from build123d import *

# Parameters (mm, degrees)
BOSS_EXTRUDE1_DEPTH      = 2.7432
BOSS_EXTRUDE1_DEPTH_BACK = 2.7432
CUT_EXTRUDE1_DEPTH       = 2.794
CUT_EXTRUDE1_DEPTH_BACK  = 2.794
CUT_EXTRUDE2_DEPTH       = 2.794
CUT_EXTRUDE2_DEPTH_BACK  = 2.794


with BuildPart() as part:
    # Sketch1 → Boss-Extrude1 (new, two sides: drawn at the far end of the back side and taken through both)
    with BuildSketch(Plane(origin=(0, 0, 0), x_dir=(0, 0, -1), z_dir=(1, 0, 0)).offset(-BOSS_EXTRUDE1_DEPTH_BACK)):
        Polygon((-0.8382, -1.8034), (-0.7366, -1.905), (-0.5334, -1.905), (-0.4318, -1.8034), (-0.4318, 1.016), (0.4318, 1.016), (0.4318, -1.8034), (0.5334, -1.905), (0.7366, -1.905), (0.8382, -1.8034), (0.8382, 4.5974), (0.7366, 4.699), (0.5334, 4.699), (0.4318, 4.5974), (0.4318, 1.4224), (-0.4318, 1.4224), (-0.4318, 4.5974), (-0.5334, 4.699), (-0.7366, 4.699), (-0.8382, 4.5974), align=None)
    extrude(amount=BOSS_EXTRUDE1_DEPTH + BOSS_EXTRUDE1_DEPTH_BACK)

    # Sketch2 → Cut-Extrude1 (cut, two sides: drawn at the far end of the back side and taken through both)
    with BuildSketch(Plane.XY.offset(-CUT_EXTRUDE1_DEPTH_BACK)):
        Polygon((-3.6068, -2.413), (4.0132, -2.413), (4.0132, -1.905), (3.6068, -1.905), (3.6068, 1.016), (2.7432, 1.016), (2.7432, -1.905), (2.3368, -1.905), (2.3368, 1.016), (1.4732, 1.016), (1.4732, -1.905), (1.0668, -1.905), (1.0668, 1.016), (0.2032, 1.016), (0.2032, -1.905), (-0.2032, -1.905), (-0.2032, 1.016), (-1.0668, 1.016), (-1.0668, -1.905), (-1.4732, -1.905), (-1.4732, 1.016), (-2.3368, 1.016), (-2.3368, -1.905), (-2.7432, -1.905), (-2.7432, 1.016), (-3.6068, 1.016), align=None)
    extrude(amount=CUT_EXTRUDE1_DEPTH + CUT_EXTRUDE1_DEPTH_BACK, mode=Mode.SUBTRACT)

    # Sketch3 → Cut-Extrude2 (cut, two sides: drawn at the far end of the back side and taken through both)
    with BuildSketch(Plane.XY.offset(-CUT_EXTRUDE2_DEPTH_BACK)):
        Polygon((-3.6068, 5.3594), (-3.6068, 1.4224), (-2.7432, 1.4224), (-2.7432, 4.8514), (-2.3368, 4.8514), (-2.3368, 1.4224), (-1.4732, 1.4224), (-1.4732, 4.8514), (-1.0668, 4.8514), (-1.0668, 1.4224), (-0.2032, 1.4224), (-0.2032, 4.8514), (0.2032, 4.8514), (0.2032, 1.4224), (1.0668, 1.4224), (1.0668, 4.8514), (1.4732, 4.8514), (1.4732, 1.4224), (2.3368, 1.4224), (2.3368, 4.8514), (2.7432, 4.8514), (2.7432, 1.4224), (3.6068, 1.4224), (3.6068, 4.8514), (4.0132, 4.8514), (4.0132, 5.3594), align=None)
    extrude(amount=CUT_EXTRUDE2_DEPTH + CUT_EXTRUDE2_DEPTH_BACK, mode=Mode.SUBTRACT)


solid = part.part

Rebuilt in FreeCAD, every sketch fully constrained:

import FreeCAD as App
import Part
import Sketcher
from FreeCAD import Vector
Q = App.Units.Quantity

doc = App.newDocument("Part")
body = doc.addObject("PartDesign::Body", "Body")

# Sketch on YZ plane
sketch1 = body.newObject("Sketcher::SketchObject", "Sketch")
sketch1.AttachmentSupport = (doc.getObject("YZ_Plane"), [""])
sketch1.MapMode = "FlatFace"
sketch1.addGeometry([
    Part.LineSegment(Vector(-1.8, 0.84, 0), Vector(-1.91, 0.74, 0)),  # 0
    Part.LineSegment(Vector(-1.91, 0.74, 0), Vector(-1.91, 0.53, 0)),  # 1
    Part.LineSegment(Vector(-1.91, 0.53, 0), Vector(-1.8, 0.43, 0)),  # 2
    Part.LineSegment(Vector(-1.8, 0.43, 0), Vector(1.02, 0.43, 0)),  # 3
    Part.LineSegment(Vector(1.02, 0.43, 0), Vector(1.02, -0.43, 0)),  # 4
    Part.LineSegment(Vector(1.02, -0.43, 0), Vector(-1.8, -0.43, 0)),  # 5
    Part.LineSegment(Vector(-1.8, -0.43, 0), Vector(-1.91, -0.53, 0)),  # 6
    Part.LineSegment(Vector(-1.91, -0.53, 0), Vector(-1.91, -0.74, 0)),  # 7
    Part.LineSegment(Vector(-1.91, -0.74, 0), Vector(-1.8, -0.84, 0)),  # 8
    Part.LineSegment(Vector(-1.8, -0.84, 0), Vector(4.6, -0.84, 0)),  # 9
    Part.LineSegment(Vector(4.6, -0.84, 0), Vector(4.7, -0.74, 0)),  # 10
    Part.LineSegment(Vector(4.7, -0.74, 0), Vector(4.7, -0.53, 0)),  # 11
    Part.LineSegment(Vector(4.7, -0.53, 0), Vector(4.6, -0.43, 0)),  # 12
    Part.LineSegment(Vector(4.6, -0.43, 0), Vector(1.42, -0.43, 0)),  # 13
    Part.LineSegment(Vector(1.42, -0.43, 0), Vector(1.42, 0.43, 0)),  # 14
    Part.LineSegment(Vector(1.42, 0.43, 0), Vector(4.6, 0.43, 0)),  # 15
    Part.LineSegment(Vector(4.6, 0.43, 0), Vector(4.7, 0.53, 0)),  # 16
    Part.LineSegment(Vector(4.7, 0.53, 0), Vector(4.7, 0.74, 0)),  # 17
    Part.LineSegment(Vector(4.7, 0.74, 0), Vector(4.6, 0.84, 0)),  # 18
    Part.LineSegment(Vector(4.6, 0.84, 0), Vector(-1.8, 0.84, 0)),  # 19
], False)
sketch1.addConstraint([
    Sketcher.Constraint("Coincident", 0, 2, 1, 1),
    Sketcher.Constraint("Coincident", 1, 2, 2, 1),
    Sketcher.Constraint("Coincident", 2, 2, 3, 1),
    Sketcher.Constraint("Coincident", 3, 2, 4, 1),
    Sketcher.Constraint("Coincident", 4, 2, 5, 1),
    Sketcher.Constraint("Coincident", 5, 2, 6, 1),
    Sketcher.Constraint("Coincident", 6, 2, 7, 1),
    Sketcher.Constraint("Coincident", 7, 2, 8, 1),
    Sketcher.Constraint("Coincident", 8, 2, 9, 1),
    Sketcher.Constraint("Coincident", 9, 2, 10, 1),
    Sketcher.Constraint("Coincident", 10, 2, 11, 1),
    Sketcher.Constraint("Coincident", 11, 2, 12, 1),
    Sketcher.Constraint("Coincident", 12, 2, 13, 1),
    Sketcher.Constraint("Coincident", 13, 2, 14, 1),
    Sketcher.Constraint("Coincident", 14, 2, 15, 1),
    Sketcher.Constraint("Coincident", 15, 2, 16, 1),
    Sketcher.Constraint("Coincident", 16, 2, 17, 1),
    Sketcher.Constraint("Coincident", 17, 2, 18, 1),
    Sketcher.Constraint("Coincident", 18, 2, 19, 1),
    Sketcher.Constraint("Coincident", 19, 2, 0, 1),
    Sketcher.Constraint("Vertical", 1),
    Sketcher.Constraint("Horizontal", 3),
    Sketcher.Constraint("Vertical", 4),
    Sketcher.Constraint("Horizontal", 5),
    Sketcher.Constraint("Vertical", 7),
    Sketcher.Constraint("Horizontal", 9),
    Sketcher.Constraint("Vertical", 11),
    Sketcher.Constraint("Horizontal", 13),
    Sketcher.Constraint("Vertical", 14),
    Sketcher.Constraint("Horizontal", 15),
    Sketcher.Constraint("Vertical", 17),
    Sketcher.Constraint("Horizontal", 19),
    Sketcher.Constraint("Symmetric", 2, 2, 5, 2, -1),
    Sketcher.Constraint("Symmetric", 1, 2, 6, 2, -1),
    Sketcher.Constraint("Symmetric", 12, 2, 15, 2, -1),
    Sketcher.Constraint("Symmetric", 11, 2, 16, 2, -1),
    Sketcher.Constraint("Symmetric", 9, 2, 18, 2, -1),
    Sketcher.Constraint("Perpendicular", 0, 2),
    Sketcher.Constraint("Perpendicular", 2, 6),
    Sketcher.Constraint("Perpendicular", 6, 8),
    Sketcher.Constraint("Perpendicular", 8, 10),
    Sketcher.Constraint("Perpendicular", 10, 12),
    Sketcher.Constraint("Perpendicular", 16, 18),
    Sketcher.Constraint("Horizontal", 7, 2, 10, 2),
    Sketcher.Constraint("Horizontal", 6, 2, 11, 2),
    Sketcher.Constraint("Horizontal", 5, 2, 12, 2),
    Sketcher.Constraint("Horizontal", 0, 2, 17, 2),
    Sketcher.Constraint("Vertical", 5, 2, 8, 2),
    Sketcher.Constraint("DistanceX", 3, 1, 3, 2, Q("0.111 in")),
    Sketcher.Constraint("DistanceX", 9, 1, 9, 2, Q("0.252 in")),
    Sketcher.Constraint("DistanceX", 13, 2, 13, 1, Q("0.125 in")),
    Sketcher.Constraint("DistanceY", 1, 2, 1, 1, Q("0.008 in")),
    Sketcher.Constraint("DistanceY", 4, 2, 4, 1, Q("0.034 in")),
    Sketcher.Constraint("DistanceX", -1, 1, 3, 2, Q("0.04 in")),
    Sketcher.Constraint("DistanceY", 6, 2, 0, 2, Q("0.05 in")),
])
pad1 = body.newObject("PartDesign::Pad", "Pad")
pad1.Profile = sketch1
pad1.Type = "TwoLengths"
pad1.Length = Q("0.108 in")
pad1.Length2 = Q("0.108 in")

# Sketch on XY plane
sketch2 = body.newObject("Sketcher::SketchObject", "Sketch001")
sketch2.AttachmentSupport = (doc.getObject("XY_Plane"), [""])
sketch2.MapMode = "FlatFace"
sketch2.addGeometry([
    Part.LineSegment(Vector(-3.61, -2.41, 0), Vector(4.01, -2.41, 0)),  # 0
    Part.LineSegment(Vector(4.01, -2.41, 0), Vector(4.01, -1.91, 0)),  # 1
    Part.LineSegment(Vector(4.01, -1.91, 0), Vector(3.61, -1.91, 0)),  # 2
    Part.LineSegment(Vector(3.61, -1.91, 0), Vector(3.61, 1.02, 0)),  # 3
    Part.LineSegment(Vector(3.61, 1.02, 0), Vector(2.74, 1.02, 0)),  # 4
    Part.LineSegment(Vector(2.74, 1.02, 0), Vector(2.74, -1.91, 0)),  # 5
    Part.LineSegment(Vector(2.74, -1.91, 0), Vector(2.34, -1.91, 0)),  # 6
    Part.LineSegment(Vector(2.34, -1.91, 0), Vector(2.34, 1.02, 0)),  # 7
    Part.LineSegment(Vector(2.34, 1.02, 0), Vector(1.47, 1.02, 0)),  # 8
    Part.LineSegment(Vector(1.47, 1.02, 0), Vector(1.47, -1.91, 0)),  # 9
    Part.LineSegment(Vector(1.47, -1.91, 0), Vector(1.07, -1.91, 0)),  # 10
    Part.LineSegment(Vector(1.07, -1.91, 0), Vector(1.07, 1.02, 0)),  # 11
    Part.LineSegment(Vector(1.07, 1.02, 0), Vector(0.2, 1.02, 0)),  # 12
    Part.LineSegment(Vector(0.2, 1.02, 0), Vector(0.2, -1.91, 0)),  # 13
    Part.LineSegment(Vector(0.2, -1.91, 0), Vector(-0.2, -1.91, 0)),  # 14
    Part.LineSegment(Vector(-0.2, -1.91, 0), Vector(-0.2, 1.02, 0)),  # 15
    Part.LineSegment(Vector(-0.2, 1.02, 0), Vector(-1.07, 1.02, 0)),  # 16
    Part.LineSegment(Vector(-1.07, 1.02, 0), Vector(-1.07, -1.91, 0)),  # 17
    Part.LineSegment(Vector(-1.07, -1.91, 0), Vector(-1.47, -1.91, 0)),  # 18
    Part.LineSegment(Vector(-1.47, -1.91, 0), Vector(-1.47, 1.02, 0)),  # 19
    Part.LineSegment(Vector(-1.47, 1.02, 0), Vector(-2.34, 1.02, 0)),  # 20
    Part.LineSegment(Vector(-2.34, 1.02, 0), Vector(-2.34, -1.91, 0)),  # 21
    Part.LineSegment(Vector(-2.34, -1.91, 0), Vector(-2.74, -1.91, 0)),  # 22
    Part.LineSegment(Vector(-2.74, -1.91, 0), Vector(-2.74, 1.02, 0)),  # 23
    Part.LineSegment(Vector(-2.74, 1.02, 0), Vector(-3.61, 1.02, 0)),  # 24
    Part.LineSegment(Vector(-3.61, 1.02, 0), Vector(-3.61, -2.41, 0)),  # 25
], False)
sketch2.addConstraint([
    Sketcher.Constraint("Coincident", 0, 2, 1, 1),
    Sketcher.Constraint("Coincident", 1, 2, 2, 1),
    Sketcher.Constraint("Coincident", 2, 2, 3, 1),
    Sketcher.Constraint("Coincident", 3, 2, 4, 1),
    Sketcher.Constraint("Coincident", 4, 2, 5, 1),
    Sketcher.Constraint("Coincident", 5, 2, 6, 1),
    Sketcher.Constraint("Coincident", 6, 2, 7, 1),
    Sketcher.Constraint("Coincident", 7, 2, 8, 1),
    Sketcher.Constraint("Coincident", 8, 2, 9, 1),
    Sketcher.Constraint("Coincident", 9, 2, 10, 1),
    Sketcher.Constraint("Coincident", 10, 2, 11, 1),
    Sketcher.Constraint("Coincident", 11, 2, 12, 1),
    Sketcher.Constraint("Coincident", 12, 2, 13, 1),
    Sketcher.Constraint("Coincident", 13, 2, 14, 1),
    Sketcher.Constraint("Coincident", 14, 2, 15, 1),
    Sketcher.Constraint("Coincident", 15, 2, 16, 1),
    Sketcher.Constraint("Coincident", 16, 2, 17, 1),
    Sketcher.Constraint("Coincident", 17, 2, 18, 1),
    Sketcher.Constraint("Coincident", 18, 2, 19, 1),
    Sketcher.Constraint("Coincident", 19, 2, 20, 1),
    Sketcher.Constraint("Coincident", 20, 2, 21, 1),
    Sketcher.Constraint("Coincident", 21, 2, 22, 1),
    Sketcher.Constraint("Coincident", 22, 2, 23, 1),
    Sketcher.Constraint("Coincident", 23, 2, 24, 1),
    Sketcher.Constraint("Coincident", 24, 2, 25, 1),
    Sketcher.Constraint("Coincident", 25, 2, 0, 1),
    Sketcher.Constraint("Horizontal", 0),
    Sketcher.Constraint("Vertical", 1),
    Sketcher.Constraint("Horizontal", 2),
    Sketcher.Constraint("Vertical", 3),
    Sketcher.Constraint("Horizontal", 4),
    Sketcher.Constraint("Vertical", 5),
    Sketcher.Constraint("Horizontal", 6),
    Sketcher.Constraint("Vertical", 7),
    Sketcher.Constraint("Horizontal", 8),
    Sketcher.Constraint("Vertical", 9),
    Sketcher.Constraint("Horizontal", 10),
    Sketcher.Constraint("Vertical", 11),
    Sketcher.Constraint("Horizontal", 12),
    Sketcher.Constraint("Vertical", 13),
    Sketcher.Constraint("Horizontal", 14),
    Sketcher.Constraint("Vertical", 15),
    Sketcher.Constraint("Horizontal", 16),
    Sketcher.Constraint("Vertical", 17),
    Sketcher.Constraint("Horizontal", 18),
    Sketcher.Constraint("Vertical", 19),
    Sketcher.Constraint("Horizontal", 20),
    Sketcher.Constraint("Vertical", 21),
    Sketcher.Constraint("Horizontal", 22),
    Sketcher.Constraint("Vertical", 23),
    Sketcher.Constraint("Horizontal", 24),
    Sketcher.Constraint("Vertical", 25),
    Sketcher.Constraint("Symmetric", 12, 2, 15, 2, -2),
    Sketcher.Constraint("Symmetric", 10, 2, 17, 2, -2),
    Sketcher.Constraint("Symmetric", 8, 2, 19, 2, -2),
    Sketcher.Constraint("Symmetric", 6, 2, 21, 2, -2),
    Sketcher.Constraint("Symmetric", 4, 2, 23, 2, -2),
    Sketcher.Constraint("Horizontal", 2, 2, 5, 2),
    Sketcher.Constraint("Horizontal", 4, 2, 7, 2),
    Sketcher.Constraint("Horizontal", 6, 2, 9, 2),
    Sketcher.Constraint("Horizontal", 8, 2, 11, 2),
    Sketcher.Constraint("Horizontal", 10, 2, 13, 2),
    Sketcher.Constraint("Equal", 2, 6),
    Sketcher.Constraint("Equal", 4, 8),
    Sketcher.Constraint("Equal", 6, 10),
    Sketcher.Constraint("Equal", 8, 12),
    Sketcher.Constraint("Equal", 10, 14),
    Sketcher.Constraint("Equal", 20, 24),
    Sketcher.Constraint("DistanceX", 0, 1, 0, 2, Q("0.3 in")),
    Sketcher.Constraint("DistanceY", 1, 1, 1, 2, Q("0.02 in")),
    Sketcher.Constraint("DistanceX", 2, 2, 2, 1, Q("0.016 in")),
    Sketcher.Constraint("DistanceY", 3, 1, 3, 2, Q("0.115 in")),
    Sketcher.Constraint("DistanceY", -1, 1, 3, 2, Q("0.04 in")),
])
pocket1 = body.newObject("PartDesign::Pocket", "Pocket")
pocket1.Profile = sketch2
pocket1.Type = "ThroughAll"
pocket1.Midplane = True

# Sketch on XY plane
sketch3 = body.newObject("Sketcher::SketchObject", "Sketch002")
sketch3.AttachmentSupport = (doc.getObject("XY_Plane"), [""])
sketch3.MapMode = "FlatFace"
sketch3.addGeometry([
    Part.LineSegment(Vector(-3.61, 5.36, 0), Vector(-3.61, 1.42, 0)),  # 0
    Part.LineSegment(Vector(-3.61, 1.42, 0), Vector(-2.74, 1.42, 0)),  # 1
    Part.LineSegment(Vector(-2.74, 1.42, 0), Vector(-2.74, 4.85, 0)),  # 2
    Part.LineSegment(Vector(-2.74, 4.85, 0), Vector(-2.34, 4.85, 0)),  # 3
    Part.LineSegment(Vector(-2.34, 4.85, 0), Vector(-2.34, 1.42, 0)),  # 4
    Part.LineSegment(Vector(-2.34, 1.42, 0), Vector(-1.47, 1.42, 0)),  # 5
    Part.LineSegment(Vector(-1.47, 1.42, 0), Vector(-1.47, 4.85, 0)),  # 6
    Part.LineSegment(Vector(-1.47, 4.85, 0), Vector(-1.07, 4.85, 0)),  # 7
    Part.LineSegment(Vector(-1.07, 4.85, 0), Vector(-1.07, 1.42, 0)),  # 8
    Part.LineSegment(Vector(-1.07, 1.42, 0), Vector(-0.2, 1.42, 0)),  # 9
    Part.LineSegment(Vector(-0.2, 1.42, 0), Vector(-0.2, 4.85, 0)),  # 10
    Part.LineSegment(Vector(-0.2, 4.85, 0), Vector(0.2, 4.85, 0)),  # 11
    Part.LineSegment(Vector(0.2, 4.85, 0), Vector(0.2, 1.42, 0)),  # 12
    Part.LineSegment(Vector(0.2, 1.42, 0), Vector(1.07, 1.42, 0)),  # 13
    Part.LineSegment(Vector(1.07, 1.42, 0), Vector(1.07, 4.85, 0)),  # 14
    Part.LineSegment(Vector(1.07, 4.85, 0), Vector(1.47, 4.85, 0)),  # 15
    Part.LineSegment(Vector(1.47, 4.85, 0), Vector(1.47, 1.42, 0)),  # 16
    Part.LineSegment(Vector(1.47, 1.42, 0), Vector(2.34, 1.42, 0)),  # 17
    Part.LineSegment(Vector(2.34, 1.42, 0), Vector(2.34, 4.85, 0)),  # 18
    Part.LineSegment(Vector(2.34, 4.85, 0), Vector(2.74, 4.85, 0)),  # 19
    Part.LineSegment(Vector(2.74, 4.85, 0), Vector(2.74, 1.42, 0)),  # 20
    Part.LineSegment(Vector(2.74, 1.42, 0), Vector(3.61, 1.42, 0)),  # 21
    Part.LineSegment(Vector(3.61, 1.42, 0), Vector(3.61, 4.85, 0)),  # 22
    Part.LineSegment(Vector(3.61, 4.85, 0), Vector(4.01, 4.85, 0)),  # 23
    Part.LineSegment(Vector(4.01, 4.85, 0), Vector(4.01, 5.36, 0)),  # 24
    Part.LineSegment(Vector(4.01, 5.36, 0), Vector(-3.61, 5.36, 0)),  # 25
], False)
sketch3.addConstraint([
    Sketcher.Constraint("Coincident", 0, 2, 1, 1),
    Sketcher.Constraint("Coincident", 1, 2, 2, 1),
    Sketcher.Constraint("Coincident", 2, 2, 3, 1),
    Sketcher.Constraint("Coincident", 3, 2, 4, 1),
    Sketcher.Constraint("Coincident", 4, 2, 5, 1),
    Sketcher.Constraint("Coincident", 5, 2, 6, 1),
    Sketcher.Constraint("Coincident", 6, 2, 7, 1),
    Sketcher.Constraint("Coincident", 7, 2, 8, 1),
    Sketcher.Constraint("Coincident", 8, 2, 9, 1),
    Sketcher.Constraint("Coincident", 9, 2, 10, 1),
    Sketcher.Constraint("Coincident", 10, 2, 11, 1),
    Sketcher.Constraint("Coincident", 11, 2, 12, 1),
    Sketcher.Constraint("Coincident", 12, 2, 13, 1),
    Sketcher.Constraint("Coincident", 13, 2, 14, 1),
    Sketcher.Constraint("Coincident", 14, 2, 15, 1),
    Sketcher.Constraint("Coincident", 15, 2, 16, 1),
    Sketcher.Constraint("Coincident", 16, 2, 17, 1),
    Sketcher.Constraint("Coincident", 17, 2, 18, 1),
    Sketcher.Constraint("Coincident", 18, 2, 19, 1),
    Sketcher.Constraint("Coincident", 19, 2, 20, 1),
    Sketcher.Constraint("Coincident", 20, 2, 21, 1),
    Sketcher.Constraint("Coincident", 21, 2, 22, 1),
    Sketcher.Constraint("Coincident", 22, 2, 23, 1),
    Sketcher.Constraint("Coincident", 23, 2, 24, 1),
    Sketcher.Constraint("Coincident", 24, 2, 25, 1),
    Sketcher.Constraint("Coincident", 25, 2, 0, 1),
    Sketcher.Constraint("Vertical", 0),
    Sketcher.Constraint("Horizontal", 1),
    Sketcher.Constraint("Vertical", 2),
    Sketcher.Constraint("Horizontal", 3),
    Sketcher.Constraint("Vertical", 4),
    Sketcher.Constraint("Horizontal", 5),
    Sketcher.Constraint("Vertical", 6),
    Sketcher.Constraint("Horizontal", 7),
    Sketcher.Constraint("Vertical", 8),
    Sketcher.Constraint("Horizontal", 9),
    Sketcher.Constraint("Vertical", 10),
    Sketcher.Constraint("Horizontal", 11),
    Sketcher.Constraint("Vertical", 12),
    Sketcher.Constraint("Horizontal", 13),
    Sketcher.Constraint("Vertical", 14),
    Sketcher.Constraint("Horizontal", 15),
    Sketcher.Constraint("Vertical", 16),
    Sketcher.Constraint("Horizontal", 17),
    Sketcher.Constraint("Vertical", 18),
    Sketcher.Constraint("Horizontal", 19),
    Sketcher.Constraint("Vertical", 20),
    Sketcher.Constraint("Horizontal", 21),
    Sketcher.Constraint("Vertical", 22),
    Sketcher.Constraint("Horizontal", 23),
    Sketcher.Constraint("Vertical", 24),
    Sketcher.Constraint("Horizontal", 25),
    Sketcher.Constraint("Symmetric", 9, 2, 12, 2, -2),
    Sketcher.Constraint("Symmetric", 7, 2, 14, 2, -2),
    Sketcher.Constraint("Symmetric", 5, 2, 16, 2, -2),
    Sketcher.Constraint("Symmetric", 3, 2, 18, 2, -2),
    Sketcher.Constraint("Symmetric", 1, 2, 20, 2, -2),
    Sketcher.Constraint("Horizontal", 1, 2, 4, 2),
    Sketcher.Constraint("Horizontal", 3, 2, 6, 2),
    Sketcher.Constraint("Horizontal", 5, 2, 8, 2),
    Sketcher.Constraint("Horizontal", 7, 2, 10, 2),
    Sketcher.Constraint("Horizontal", 19, 2, 22, 2),
    Sketcher.Constraint("Equal", 1, 5),
    Sketcher.Constraint("Equal", 3, 7),
    Sketcher.Constraint("Equal", 5, 9),
    Sketcher.Constraint("Equal", 7, 11),
    Sketcher.Constraint("Equal", 17, 21),
    Sketcher.Constraint("Equal", 19, 23),
    Sketcher.Constraint("DistanceX", 25, 2, 25, 1, Q("0.3 in")),
    Sketcher.Constraint("DistanceY", 24, 1, 24, 2, Q("0.02 in")),
    Sketcher.Constraint("DistanceX", 1, 1, 1, 2, Q("0.034 in")),
    Sketcher.Constraint("DistanceY", 0, 2, 0, 1, Q("0.155 in")),
    Sketcher.Constraint("DistanceY", -1, 1, 0, 2, Q("0.056 in")),
])
pocket2 = body.newObject("PartDesign::Pocket", "Pocket001")
pocket2.Profile = sketch3
pocket2.Type = "ThroughAll"
pocket2.Midplane = True

doc.recompute()
